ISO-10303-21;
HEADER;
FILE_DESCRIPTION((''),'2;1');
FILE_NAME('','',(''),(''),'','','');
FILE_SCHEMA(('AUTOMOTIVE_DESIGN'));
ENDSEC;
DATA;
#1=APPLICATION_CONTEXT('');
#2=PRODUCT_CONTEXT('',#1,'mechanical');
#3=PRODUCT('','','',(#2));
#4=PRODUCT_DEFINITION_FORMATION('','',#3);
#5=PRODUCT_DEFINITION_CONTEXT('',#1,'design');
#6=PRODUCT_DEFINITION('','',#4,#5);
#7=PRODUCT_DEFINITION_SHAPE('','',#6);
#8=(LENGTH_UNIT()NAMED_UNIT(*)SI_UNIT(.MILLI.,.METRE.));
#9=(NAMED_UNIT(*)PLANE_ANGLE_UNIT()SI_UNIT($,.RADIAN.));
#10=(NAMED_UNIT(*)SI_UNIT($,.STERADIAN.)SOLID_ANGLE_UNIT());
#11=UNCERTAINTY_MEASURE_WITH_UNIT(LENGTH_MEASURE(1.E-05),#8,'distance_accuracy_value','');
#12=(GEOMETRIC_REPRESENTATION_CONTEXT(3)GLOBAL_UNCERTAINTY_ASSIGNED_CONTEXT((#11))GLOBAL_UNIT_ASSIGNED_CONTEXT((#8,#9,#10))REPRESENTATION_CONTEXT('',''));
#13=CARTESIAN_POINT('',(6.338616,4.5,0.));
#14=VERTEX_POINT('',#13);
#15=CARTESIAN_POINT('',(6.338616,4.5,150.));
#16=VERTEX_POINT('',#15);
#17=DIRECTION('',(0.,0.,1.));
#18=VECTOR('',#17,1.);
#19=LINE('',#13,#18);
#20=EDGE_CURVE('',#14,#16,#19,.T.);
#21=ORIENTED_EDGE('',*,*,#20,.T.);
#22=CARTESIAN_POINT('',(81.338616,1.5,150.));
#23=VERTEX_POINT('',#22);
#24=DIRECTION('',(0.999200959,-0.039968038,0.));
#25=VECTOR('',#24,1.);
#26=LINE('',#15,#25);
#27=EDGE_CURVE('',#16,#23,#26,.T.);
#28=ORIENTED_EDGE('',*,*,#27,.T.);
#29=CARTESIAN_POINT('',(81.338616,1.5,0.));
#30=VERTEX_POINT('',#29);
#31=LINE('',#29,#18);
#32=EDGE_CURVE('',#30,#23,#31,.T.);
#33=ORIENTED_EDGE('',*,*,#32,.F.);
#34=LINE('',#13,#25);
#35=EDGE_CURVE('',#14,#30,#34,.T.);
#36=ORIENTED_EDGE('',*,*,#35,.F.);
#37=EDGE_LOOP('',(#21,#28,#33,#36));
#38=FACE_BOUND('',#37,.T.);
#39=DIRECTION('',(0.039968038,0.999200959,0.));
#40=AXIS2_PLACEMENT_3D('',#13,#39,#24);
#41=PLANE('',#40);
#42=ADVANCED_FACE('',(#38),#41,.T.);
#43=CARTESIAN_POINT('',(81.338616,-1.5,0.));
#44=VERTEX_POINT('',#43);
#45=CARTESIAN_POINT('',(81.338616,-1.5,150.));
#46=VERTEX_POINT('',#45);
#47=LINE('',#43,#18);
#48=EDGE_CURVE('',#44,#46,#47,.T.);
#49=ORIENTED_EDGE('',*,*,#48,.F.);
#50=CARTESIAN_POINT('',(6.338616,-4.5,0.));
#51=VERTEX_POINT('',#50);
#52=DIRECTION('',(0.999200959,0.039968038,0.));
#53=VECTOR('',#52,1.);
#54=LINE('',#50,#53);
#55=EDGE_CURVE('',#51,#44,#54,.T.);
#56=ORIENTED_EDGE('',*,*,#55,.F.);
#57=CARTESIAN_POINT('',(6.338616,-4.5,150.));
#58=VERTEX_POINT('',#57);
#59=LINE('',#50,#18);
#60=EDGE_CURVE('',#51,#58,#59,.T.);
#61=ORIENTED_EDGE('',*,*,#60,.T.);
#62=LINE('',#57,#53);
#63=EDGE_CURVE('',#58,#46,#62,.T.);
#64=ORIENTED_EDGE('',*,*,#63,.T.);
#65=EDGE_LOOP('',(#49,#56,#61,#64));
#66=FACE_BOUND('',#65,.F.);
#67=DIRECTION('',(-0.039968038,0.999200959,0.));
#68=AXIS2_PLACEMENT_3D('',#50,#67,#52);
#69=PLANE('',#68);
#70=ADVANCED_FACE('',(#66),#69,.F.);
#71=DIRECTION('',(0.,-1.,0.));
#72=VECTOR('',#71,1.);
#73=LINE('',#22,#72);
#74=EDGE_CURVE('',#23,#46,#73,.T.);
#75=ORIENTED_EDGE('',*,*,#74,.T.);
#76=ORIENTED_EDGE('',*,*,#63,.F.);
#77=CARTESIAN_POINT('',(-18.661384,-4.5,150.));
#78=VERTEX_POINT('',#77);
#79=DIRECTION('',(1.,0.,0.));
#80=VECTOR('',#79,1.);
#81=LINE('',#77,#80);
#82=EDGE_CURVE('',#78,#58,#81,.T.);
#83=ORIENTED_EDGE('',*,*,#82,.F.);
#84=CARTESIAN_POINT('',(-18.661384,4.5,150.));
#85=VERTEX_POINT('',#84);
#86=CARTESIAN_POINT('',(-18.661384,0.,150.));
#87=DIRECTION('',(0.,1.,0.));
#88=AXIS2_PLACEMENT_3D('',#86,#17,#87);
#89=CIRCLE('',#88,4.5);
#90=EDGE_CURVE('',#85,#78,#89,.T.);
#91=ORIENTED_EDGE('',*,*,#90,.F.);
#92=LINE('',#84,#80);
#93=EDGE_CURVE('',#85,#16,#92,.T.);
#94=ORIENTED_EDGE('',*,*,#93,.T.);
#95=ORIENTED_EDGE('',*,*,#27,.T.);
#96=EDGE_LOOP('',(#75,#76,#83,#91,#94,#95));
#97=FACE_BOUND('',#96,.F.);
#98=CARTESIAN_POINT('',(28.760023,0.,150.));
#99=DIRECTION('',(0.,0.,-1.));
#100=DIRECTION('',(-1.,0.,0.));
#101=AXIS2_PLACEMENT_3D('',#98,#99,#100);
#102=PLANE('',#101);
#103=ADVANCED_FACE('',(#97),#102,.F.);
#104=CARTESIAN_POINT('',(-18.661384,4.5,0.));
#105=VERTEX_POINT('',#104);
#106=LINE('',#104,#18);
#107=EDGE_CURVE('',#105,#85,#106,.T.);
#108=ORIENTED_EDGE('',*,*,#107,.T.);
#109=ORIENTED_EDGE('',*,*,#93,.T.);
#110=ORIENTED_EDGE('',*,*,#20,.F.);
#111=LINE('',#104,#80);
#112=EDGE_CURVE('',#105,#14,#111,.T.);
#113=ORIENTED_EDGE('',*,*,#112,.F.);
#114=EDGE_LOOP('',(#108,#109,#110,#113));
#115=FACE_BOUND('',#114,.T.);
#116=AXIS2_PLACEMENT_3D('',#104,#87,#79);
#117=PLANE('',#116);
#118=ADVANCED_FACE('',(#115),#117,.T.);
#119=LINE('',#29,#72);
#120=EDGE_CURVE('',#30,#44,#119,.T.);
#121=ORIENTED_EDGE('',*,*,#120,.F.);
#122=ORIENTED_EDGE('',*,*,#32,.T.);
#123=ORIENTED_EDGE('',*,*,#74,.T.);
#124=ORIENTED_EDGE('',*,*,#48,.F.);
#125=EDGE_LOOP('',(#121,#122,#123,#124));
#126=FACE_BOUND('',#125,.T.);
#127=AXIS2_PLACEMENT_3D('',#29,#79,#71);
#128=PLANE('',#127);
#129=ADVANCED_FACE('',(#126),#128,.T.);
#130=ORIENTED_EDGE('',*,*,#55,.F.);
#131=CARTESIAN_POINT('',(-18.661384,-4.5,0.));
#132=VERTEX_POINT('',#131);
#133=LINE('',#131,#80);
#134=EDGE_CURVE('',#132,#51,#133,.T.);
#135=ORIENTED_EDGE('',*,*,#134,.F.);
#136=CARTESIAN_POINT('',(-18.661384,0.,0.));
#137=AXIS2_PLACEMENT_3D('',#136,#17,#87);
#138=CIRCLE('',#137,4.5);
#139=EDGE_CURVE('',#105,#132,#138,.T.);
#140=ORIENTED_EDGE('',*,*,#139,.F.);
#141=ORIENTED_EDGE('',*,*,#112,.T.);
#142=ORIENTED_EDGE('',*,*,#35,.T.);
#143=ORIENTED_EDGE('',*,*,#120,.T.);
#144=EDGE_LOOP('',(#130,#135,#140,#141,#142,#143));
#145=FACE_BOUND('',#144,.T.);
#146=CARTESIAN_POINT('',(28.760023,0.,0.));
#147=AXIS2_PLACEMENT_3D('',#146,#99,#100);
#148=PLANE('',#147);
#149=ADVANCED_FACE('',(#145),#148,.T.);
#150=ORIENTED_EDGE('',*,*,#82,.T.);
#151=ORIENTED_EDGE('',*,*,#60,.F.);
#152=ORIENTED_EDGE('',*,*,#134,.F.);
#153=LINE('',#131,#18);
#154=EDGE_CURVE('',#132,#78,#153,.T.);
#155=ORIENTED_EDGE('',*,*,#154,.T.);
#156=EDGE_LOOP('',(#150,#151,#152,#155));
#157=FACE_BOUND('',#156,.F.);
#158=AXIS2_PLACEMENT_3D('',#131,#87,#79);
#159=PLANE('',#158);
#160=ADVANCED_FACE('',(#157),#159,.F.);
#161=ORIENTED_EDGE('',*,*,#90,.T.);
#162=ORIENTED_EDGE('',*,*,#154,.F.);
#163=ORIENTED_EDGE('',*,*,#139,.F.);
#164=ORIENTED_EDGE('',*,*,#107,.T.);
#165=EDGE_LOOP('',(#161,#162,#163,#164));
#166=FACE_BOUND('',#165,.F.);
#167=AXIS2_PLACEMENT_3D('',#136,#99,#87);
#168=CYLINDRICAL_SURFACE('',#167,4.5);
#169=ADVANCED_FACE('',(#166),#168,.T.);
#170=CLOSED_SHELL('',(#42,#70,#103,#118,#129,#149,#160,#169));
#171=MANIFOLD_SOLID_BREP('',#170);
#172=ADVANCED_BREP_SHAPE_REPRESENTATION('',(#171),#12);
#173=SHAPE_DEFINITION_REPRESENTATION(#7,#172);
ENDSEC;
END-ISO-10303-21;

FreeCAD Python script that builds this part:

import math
import FreeCAD as App
import Part
import Sketcher
Q = App.Units.Quantity

doc = App.newDocument("Part")
body = doc.addObject("PartDesign::Body", "Body")

sketch1 = body.newObject("Sketcher::SketchObject", "Sketch")
sketch1.AttachmentSupport = (doc.getObject("XY_Plane"), [""])
sketch1.MapMode = "FlatFace"
sketch1.addGeometry(Part.LineSegment(App.Vector(6.338616, 4.5, 0), App.Vector(-18.661384, 4.5, 0)), False)
sketch1.addGeometry(Part.ArcOfCircle(Part.Circle(App.Vector(-18.661384, 0, 0), App.Vector(0, 0, 1), 4.5), math.radians(90), math.radians(270)), False)
sketch1.addGeometry(Part.LineSegment(App.Vector(-18.661384, -4.5, 0), App.Vector(6.338616, -4.5, 0)), False)
sketch1.addGeometry(Part.LineSegment(App.Vector(6.338616, -4.5, 0), App.Vector(81.338616, -1.5, 0)), False)
sketch1.addGeometry(Part.LineSegment(App.Vector(81.338616, -1.5, 0), App.Vector(81.338616, 1.5, 0)), False)
sketch1.addGeometry(Part.LineSegment(App.Vector(81.338616, 1.5, 0), App.Vector(6.338616, 4.5, 0)), False)
sketch1.addConstraint(Sketcher.Constraint("Tangent", 0, 2, 1, 1))
sketch1.addConstraint(Sketcher.Constraint("Tangent", 1, 2, 2, 1))
sketch1.addConstraint(Sketcher.Constraint("Coincident", 2, 2, 3, 1))
sketch1.addConstraint(Sketcher.Constraint("Coincident", 3, 2, 4, 1))
sketch1.addConstraint(Sketcher.Constraint("Coincident", 4, 2, 5, 1))
sketch1.addConstraint(Sketcher.Constraint("Coincident", 5, 2, 0, 1))
sketch1.addConstraint(Sketcher.Constraint("Horizontal", 0))
sketch1.addConstraint(Sketcher.Constraint("Horizontal", 2))
sketch1.addConstraint(Sketcher.Constraint("Vertical", 4))
sketch1.addConstraint(Sketcher.Constraint("Symmetric", 2, 2, 5, 2, -1))
sketch1.addConstraint(Sketcher.Constraint("Equal", 3, 5))
sketch1.addConstraint(Sketcher.Constraint("Radius", 1, Q("4.5 mm")))
sketch1.addConstraint(Sketcher.Constraint("DistanceX", 0, 2, 0, 1, Q("25 mm")))
sketch1.addConstraint(Sketcher.Constraint("DistanceY", 4, 1, 4, 2, Q("3 mm")))
sketch1.addConstraint(Sketcher.Constraint("DistanceX", 2, 2, 3, 2, Q("75 mm")))
sketch1.addConstraint(Sketcher.Constraint("DistanceX", 1, 3, -1, 1, Q("18.661384 mm")))
pad1 = body.newObject("PartDesign::Pad", "Pad")
pad1.Profile = sketch1
pad1.Length = 150

doc.recompute()
